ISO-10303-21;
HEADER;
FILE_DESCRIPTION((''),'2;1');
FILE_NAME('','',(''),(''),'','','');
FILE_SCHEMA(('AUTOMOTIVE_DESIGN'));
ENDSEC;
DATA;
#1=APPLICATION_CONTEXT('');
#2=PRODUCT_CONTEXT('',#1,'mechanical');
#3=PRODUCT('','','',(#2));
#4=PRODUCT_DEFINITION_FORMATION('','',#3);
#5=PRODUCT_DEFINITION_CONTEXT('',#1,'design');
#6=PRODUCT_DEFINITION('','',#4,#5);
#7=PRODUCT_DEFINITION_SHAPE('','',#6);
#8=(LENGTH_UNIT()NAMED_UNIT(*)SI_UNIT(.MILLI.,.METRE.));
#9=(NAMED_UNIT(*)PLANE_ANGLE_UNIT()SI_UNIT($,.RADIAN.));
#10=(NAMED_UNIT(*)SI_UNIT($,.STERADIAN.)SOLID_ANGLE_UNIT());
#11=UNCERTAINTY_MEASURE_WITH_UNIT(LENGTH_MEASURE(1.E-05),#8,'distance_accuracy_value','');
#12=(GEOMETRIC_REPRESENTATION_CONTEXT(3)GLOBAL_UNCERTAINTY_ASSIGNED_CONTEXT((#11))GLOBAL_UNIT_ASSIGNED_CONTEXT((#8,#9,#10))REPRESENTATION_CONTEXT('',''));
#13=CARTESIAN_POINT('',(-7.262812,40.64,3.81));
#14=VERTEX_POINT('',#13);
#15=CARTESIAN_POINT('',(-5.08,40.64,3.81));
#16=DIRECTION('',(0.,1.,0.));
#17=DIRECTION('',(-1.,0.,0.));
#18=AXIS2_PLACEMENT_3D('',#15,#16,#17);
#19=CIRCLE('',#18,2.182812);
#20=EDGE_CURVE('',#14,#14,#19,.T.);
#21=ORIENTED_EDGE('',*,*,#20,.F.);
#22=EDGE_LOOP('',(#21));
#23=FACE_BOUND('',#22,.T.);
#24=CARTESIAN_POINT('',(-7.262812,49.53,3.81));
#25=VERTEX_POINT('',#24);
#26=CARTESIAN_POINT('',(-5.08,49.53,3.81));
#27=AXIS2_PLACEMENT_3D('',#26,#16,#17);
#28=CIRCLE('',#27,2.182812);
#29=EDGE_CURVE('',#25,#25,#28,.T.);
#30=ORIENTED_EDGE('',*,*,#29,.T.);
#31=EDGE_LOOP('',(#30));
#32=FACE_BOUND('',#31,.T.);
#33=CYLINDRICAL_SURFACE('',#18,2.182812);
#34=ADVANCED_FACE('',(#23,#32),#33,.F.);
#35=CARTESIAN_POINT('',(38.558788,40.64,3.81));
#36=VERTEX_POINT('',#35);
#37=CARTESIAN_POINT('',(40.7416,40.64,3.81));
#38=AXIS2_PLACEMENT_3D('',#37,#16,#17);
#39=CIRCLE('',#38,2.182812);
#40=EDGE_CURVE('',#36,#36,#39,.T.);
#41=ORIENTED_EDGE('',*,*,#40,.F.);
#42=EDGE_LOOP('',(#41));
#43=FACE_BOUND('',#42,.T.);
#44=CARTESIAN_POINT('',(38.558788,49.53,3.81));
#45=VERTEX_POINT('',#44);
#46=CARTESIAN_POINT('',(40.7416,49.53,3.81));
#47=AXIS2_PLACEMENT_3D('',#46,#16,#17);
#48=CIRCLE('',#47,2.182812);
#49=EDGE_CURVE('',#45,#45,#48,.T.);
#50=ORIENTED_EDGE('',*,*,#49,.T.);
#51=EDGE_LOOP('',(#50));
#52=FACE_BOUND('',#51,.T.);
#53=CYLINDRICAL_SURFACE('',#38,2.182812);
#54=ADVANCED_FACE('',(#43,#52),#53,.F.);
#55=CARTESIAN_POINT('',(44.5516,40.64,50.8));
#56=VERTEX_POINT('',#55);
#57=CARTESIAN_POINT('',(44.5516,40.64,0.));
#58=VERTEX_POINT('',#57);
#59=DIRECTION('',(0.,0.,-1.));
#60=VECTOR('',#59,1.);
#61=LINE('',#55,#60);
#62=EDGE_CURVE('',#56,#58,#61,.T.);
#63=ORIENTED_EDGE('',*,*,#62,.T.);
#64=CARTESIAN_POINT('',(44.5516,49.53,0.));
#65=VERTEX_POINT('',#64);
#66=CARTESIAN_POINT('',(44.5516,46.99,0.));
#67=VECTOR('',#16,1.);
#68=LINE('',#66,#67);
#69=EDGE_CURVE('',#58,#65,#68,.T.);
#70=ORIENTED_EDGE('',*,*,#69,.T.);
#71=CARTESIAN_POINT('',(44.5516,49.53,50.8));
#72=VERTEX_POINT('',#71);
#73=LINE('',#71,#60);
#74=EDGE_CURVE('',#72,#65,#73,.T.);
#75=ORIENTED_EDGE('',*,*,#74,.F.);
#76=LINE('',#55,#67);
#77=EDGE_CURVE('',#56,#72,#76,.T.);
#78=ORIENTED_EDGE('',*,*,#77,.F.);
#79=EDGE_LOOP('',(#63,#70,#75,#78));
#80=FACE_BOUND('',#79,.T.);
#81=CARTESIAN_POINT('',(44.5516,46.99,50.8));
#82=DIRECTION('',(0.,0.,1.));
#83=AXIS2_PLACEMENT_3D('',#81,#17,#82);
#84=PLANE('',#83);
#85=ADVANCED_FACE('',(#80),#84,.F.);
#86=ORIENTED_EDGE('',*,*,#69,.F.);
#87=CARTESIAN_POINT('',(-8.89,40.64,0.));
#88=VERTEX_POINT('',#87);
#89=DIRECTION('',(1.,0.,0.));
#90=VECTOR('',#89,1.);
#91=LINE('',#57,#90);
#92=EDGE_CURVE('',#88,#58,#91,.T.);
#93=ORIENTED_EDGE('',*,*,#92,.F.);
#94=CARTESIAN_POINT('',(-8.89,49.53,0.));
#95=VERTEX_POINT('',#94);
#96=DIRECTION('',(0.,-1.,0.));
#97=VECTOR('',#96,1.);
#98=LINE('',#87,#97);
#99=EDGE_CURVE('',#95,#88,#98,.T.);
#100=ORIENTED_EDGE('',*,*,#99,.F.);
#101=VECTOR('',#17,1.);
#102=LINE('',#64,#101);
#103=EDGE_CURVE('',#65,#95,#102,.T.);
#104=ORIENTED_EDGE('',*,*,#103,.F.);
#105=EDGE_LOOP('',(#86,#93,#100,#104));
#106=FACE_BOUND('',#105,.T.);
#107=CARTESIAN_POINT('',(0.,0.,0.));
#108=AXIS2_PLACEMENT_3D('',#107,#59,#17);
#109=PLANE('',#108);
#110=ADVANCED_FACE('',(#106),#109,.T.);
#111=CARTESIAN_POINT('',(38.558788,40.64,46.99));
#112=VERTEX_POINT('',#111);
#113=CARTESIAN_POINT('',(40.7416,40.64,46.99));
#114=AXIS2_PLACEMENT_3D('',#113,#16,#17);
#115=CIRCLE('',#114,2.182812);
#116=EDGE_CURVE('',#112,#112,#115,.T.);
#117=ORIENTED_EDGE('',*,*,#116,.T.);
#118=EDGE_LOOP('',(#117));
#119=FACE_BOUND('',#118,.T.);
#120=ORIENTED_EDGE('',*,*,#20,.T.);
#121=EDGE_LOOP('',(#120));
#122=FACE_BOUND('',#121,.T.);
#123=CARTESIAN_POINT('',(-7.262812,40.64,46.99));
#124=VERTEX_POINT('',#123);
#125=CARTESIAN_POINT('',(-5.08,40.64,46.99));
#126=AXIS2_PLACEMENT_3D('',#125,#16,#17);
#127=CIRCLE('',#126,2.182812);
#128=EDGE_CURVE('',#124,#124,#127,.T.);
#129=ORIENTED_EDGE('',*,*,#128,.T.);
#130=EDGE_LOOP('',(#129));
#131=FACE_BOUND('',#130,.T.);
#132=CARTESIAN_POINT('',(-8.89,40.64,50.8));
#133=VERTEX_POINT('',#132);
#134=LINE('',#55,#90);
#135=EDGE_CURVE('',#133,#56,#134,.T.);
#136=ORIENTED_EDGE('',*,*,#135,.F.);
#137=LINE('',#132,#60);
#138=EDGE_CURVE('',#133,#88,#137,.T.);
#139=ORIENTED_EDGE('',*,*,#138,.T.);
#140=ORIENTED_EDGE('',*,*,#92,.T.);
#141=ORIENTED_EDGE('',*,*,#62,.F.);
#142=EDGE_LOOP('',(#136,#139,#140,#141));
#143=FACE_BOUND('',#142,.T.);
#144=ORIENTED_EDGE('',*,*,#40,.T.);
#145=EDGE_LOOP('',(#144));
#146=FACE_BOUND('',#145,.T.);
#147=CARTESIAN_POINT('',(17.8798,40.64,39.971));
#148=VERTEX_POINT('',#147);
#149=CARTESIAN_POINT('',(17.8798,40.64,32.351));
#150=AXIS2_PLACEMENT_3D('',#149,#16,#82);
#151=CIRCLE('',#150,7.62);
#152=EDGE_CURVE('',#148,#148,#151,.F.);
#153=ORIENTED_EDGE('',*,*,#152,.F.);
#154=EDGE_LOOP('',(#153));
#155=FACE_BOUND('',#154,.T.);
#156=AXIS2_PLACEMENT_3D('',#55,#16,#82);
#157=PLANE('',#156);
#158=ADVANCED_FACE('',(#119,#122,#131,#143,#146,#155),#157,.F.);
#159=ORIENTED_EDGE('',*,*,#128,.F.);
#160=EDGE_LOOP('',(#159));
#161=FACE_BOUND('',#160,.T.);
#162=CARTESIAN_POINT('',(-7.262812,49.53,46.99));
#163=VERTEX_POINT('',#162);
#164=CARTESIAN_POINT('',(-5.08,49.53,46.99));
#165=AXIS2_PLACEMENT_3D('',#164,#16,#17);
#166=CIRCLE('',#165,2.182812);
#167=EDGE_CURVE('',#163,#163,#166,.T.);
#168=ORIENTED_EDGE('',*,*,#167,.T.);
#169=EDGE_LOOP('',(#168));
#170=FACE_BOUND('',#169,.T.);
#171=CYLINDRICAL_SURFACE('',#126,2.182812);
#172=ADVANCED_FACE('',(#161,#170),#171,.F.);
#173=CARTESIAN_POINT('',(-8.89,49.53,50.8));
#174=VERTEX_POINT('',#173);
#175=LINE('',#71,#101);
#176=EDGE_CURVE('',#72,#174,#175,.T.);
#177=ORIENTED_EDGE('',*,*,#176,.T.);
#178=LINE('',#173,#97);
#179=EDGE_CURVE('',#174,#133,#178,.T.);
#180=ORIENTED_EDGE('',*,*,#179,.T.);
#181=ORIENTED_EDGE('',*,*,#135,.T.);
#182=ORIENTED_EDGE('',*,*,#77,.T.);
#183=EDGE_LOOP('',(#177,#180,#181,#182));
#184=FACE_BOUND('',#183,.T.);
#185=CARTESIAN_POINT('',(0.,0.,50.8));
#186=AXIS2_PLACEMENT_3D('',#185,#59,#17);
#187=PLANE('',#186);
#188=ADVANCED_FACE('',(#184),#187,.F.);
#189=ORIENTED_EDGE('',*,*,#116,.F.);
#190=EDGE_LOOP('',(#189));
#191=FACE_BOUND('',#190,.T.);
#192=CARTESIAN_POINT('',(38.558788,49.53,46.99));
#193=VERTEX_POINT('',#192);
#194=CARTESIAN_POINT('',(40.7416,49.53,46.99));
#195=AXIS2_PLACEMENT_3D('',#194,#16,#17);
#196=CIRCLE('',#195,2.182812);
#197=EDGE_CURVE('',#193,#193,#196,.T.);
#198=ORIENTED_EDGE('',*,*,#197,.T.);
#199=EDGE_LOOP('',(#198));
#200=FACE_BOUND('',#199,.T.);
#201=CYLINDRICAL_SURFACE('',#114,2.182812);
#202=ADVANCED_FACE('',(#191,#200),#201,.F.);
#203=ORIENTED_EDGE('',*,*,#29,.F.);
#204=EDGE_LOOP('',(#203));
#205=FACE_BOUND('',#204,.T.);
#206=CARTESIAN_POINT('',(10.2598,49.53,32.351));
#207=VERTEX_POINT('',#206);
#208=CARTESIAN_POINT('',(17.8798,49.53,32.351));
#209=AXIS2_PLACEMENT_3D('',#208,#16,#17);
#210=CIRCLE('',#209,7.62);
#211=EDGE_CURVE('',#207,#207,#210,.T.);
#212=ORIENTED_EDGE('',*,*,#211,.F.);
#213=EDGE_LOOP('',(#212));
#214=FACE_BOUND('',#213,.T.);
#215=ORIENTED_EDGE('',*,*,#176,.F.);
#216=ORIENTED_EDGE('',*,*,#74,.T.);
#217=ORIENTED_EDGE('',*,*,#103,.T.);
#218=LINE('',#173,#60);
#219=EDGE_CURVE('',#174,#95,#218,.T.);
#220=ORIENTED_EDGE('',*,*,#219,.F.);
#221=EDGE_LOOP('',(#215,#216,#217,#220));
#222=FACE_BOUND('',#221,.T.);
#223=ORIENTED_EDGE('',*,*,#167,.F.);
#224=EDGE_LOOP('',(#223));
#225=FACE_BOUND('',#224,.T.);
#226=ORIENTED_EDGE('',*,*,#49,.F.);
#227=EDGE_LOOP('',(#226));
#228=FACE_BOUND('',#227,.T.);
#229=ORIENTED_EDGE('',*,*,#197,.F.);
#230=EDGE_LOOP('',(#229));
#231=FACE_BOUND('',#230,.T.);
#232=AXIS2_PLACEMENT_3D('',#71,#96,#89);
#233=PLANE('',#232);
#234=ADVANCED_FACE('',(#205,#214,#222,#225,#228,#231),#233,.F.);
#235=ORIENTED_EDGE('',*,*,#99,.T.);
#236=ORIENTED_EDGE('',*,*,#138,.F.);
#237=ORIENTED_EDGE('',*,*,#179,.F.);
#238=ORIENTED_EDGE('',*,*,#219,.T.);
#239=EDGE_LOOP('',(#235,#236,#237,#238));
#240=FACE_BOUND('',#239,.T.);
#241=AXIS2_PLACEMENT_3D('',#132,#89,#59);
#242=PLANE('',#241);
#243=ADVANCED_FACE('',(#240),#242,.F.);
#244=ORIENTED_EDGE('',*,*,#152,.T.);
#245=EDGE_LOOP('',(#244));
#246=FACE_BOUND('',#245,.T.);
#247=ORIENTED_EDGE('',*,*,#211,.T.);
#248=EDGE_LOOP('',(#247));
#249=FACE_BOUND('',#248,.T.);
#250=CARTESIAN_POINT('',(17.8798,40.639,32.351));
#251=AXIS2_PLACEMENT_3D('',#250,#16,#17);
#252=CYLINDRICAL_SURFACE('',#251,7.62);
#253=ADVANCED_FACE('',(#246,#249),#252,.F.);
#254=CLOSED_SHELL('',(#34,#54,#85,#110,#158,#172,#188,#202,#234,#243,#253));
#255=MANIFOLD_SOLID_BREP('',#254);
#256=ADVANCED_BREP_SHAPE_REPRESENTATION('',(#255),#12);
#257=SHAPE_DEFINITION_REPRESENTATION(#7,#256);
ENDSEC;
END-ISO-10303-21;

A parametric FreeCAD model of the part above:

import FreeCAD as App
import Part
import Sketcher
Q = App.Units.Quantity

doc = App.newDocument("Part")
body = doc.addObject("PartDesign::Body", "Body")

sketch1 = doc.addObject("Sketcher::SketchObject", "Sketch")
body.addObject(sketch1)
sketch1.AttachmentSupport = (doc.XY_Plane, [""])
sketch1.MapMode = "FlatFace"
sketch1.addGeometry([
    Part.LineSegment(App.Vector(-8.89, 49.53, 0), App.Vector(-8.89, 40.64, 0)),
    Part.LineSegment(App.Vector(-8.89, 40.64, 0), App.Vector(44.5516, 40.64, 0)),
    Part.LineSegment(App.Vector(44.5516, 40.64, 0), App.Vector(44.5516, 49.53, 0)),
    Part.LineSegment(App.Vector(44.5516, 49.53, 0), App.Vector(-8.89, 49.53, 0)),
], False)
sketch1.addConstraint([
    Sketcher.Constraint("Coincident", 0, 2, 1, 1),
    Sketcher.Constraint("Coincident", 1, 2, 2, 1),
    Sketcher.Constraint("Coincident", 2, 2, 3, 1),
    Sketcher.Constraint("Coincident", 3, 2, 0, 1),
    Sketcher.Constraint("Vertical", 0),
    Sketcher.Constraint("Horizontal", 1),
    Sketcher.Constraint("Vertical", 2),
    Sketcher.Constraint("Horizontal", 3),
    Sketcher.Constraint("DistanceY", 0, 2, 0, 1, Q("0.35 in")),
    Sketcher.Constraint("DistanceY", -1, 1, 0, 2, Q("1.6 in")),
    Sketcher.Constraint("DistanceX", 1, 1, 1, 2, Q("2.104 in")),
    Sketcher.Constraint("DistanceX", 0, 2, -1, 1, Q("0.35 in")),
])
pad1 = doc.addObject("PartDesign::Pad", "Pad")
body.addObject(pad1)
pad1.Profile = sketch1
pad1.Length = Q("2 in")

sketch2 = doc.addObject("Sketcher::SketchObject", "Sketch001")
body.addObject(sketch2)
sketch2.AttachmentSupport = (doc.XZ_Plane, [""])
sketch2.MapMode = "FlatFace"
sketch2.AttachmentOffset = App.Placement(App.Vector(0, 0, -1.95 * 25.4), App.Rotation())
sketch2.addGeometry(Part.Circle(App.Vector(17.8798, 32.351, 0), App.Vector(0, 0, 1), 7.62), False)
sketch2.addConstraint([
    Sketcher.Constraint("Diameter", 0, Q("0.6 in")),
    Sketcher.Constraint("DistanceX", -1, 1, 0, 3, Q("17.8798 mm")),
    Sketcher.Constraint("DistanceY", -1, 1, 0, 3, Q("32.351 mm")),
])
pocket1 = doc.addObject("PartDesign::Pocket", "Pocket")
body.addObject(pocket1)
pocket1.Profile = sketch2
pocket1.Type = "UpToFirst"
pocket1.Reversed = True

sketch3 = doc.addObject("Sketcher::SketchObject", "Sketch002")
body.addObject(sketch3)
sketch3.AttachmentSupport = (doc.XZ_Plane, [""])
sketch3.MapMode = "FlatFace"
sketch3.AttachmentOffset = App.Placement(App.Vector(0, 0, -1.95 * 25.4), App.Rotation())
sketch3.addGeometry([
    Part.Circle(App.Vector(40.7416, 46.99, 0), App.Vector(0, 0, 1), 2.182812),
    Part.Circle(App.Vector(-5.08, 46.99, 0), App.Vector(0, 0, 1), 2.182812),
    Part.Circle(App.Vector(-5.08, 3.81, 0), App.Vector(0, 0, 1), 2.182812),
    Part.Circle(App.Vector(40.7416, 3.81, 0), App.Vector(0, 0, 1), 2.182812),
], False)
sketch3.addConstraint([
    Sketcher.Constraint("Equal", 0, 1),
    Sketcher.Constraint("Equal", 1, 2),
    Sketcher.Constraint("Equal", 2, 3),
    Sketcher.Constraint("Horizontal", 0, 3, 1, 3),
    Sketcher.Constraint("Horizontal", 2, 3, 3, 3),
    Sketcher.Constraint("Vertical", 1, 3, 2, 3),
    Sketcher.Constraint("Vertical", 0, 3, 3, 3),
    Sketcher.Constraint("Diameter", 0, Q("0.171875 in")),
    Sketcher.Constraint("DistanceX", 1, 3, -1, 1, Q("0.2 in")),
    Sketcher.Constraint("DistanceY", 2, 3, 1, 3, Q("1.7 in")),
    Sketcher.Constraint("DistanceY", -1, 1, 0, 3, Q("1.85 in")),
    Sketcher.Constraint("DistanceX", -1, 1, 0, 3, Q("1.604 in")),
])
pocket2 = doc.addObject("PartDesign::Pocket", "Pocket001")
body.addObject(pocket2)
pocket2.Profile = sketch3
pocket2.Type = "ThroughAll"
pocket2.Reversed = True

doc.recompute()
